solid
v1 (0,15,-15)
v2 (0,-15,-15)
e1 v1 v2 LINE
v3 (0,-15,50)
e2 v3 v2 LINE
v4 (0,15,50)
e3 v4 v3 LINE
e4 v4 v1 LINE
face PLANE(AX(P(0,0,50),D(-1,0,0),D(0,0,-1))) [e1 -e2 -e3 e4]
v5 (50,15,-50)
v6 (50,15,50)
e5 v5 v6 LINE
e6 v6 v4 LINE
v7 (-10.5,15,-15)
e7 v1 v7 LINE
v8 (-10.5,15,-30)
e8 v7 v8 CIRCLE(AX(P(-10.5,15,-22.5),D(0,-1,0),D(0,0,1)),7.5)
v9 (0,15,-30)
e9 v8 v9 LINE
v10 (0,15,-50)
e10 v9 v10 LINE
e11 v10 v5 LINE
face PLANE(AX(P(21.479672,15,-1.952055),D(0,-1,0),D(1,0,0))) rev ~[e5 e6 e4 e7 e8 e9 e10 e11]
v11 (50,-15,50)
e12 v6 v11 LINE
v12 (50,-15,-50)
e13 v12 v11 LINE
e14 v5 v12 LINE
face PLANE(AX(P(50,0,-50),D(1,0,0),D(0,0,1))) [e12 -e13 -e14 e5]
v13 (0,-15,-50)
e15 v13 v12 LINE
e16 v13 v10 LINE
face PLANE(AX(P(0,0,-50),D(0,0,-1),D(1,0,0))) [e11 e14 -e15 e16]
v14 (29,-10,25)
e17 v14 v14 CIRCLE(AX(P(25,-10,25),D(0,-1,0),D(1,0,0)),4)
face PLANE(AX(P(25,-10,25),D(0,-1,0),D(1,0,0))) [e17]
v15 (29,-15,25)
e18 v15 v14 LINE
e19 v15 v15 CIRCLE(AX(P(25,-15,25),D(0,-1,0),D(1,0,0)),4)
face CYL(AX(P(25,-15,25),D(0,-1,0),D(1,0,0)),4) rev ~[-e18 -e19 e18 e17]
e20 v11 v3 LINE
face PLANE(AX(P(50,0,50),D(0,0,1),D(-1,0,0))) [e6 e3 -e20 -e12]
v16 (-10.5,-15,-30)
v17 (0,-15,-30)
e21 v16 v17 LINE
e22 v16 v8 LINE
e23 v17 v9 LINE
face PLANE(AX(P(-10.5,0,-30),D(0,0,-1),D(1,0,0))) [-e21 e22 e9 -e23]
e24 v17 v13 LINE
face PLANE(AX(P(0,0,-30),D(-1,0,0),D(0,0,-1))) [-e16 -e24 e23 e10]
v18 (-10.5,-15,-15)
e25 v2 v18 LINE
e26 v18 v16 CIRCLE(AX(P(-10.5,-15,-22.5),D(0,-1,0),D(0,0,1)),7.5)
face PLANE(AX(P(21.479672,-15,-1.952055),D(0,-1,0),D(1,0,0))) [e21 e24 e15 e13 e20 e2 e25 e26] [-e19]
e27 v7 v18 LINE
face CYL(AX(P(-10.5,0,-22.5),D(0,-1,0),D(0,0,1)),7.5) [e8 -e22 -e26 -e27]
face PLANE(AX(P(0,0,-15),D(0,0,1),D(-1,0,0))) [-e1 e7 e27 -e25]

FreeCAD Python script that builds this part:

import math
import FreeCAD as App
import Part
import Sketcher

V = App.Vector
Q = App.Units.Quantity

doc = App.newDocument("Part")
body = doc.addObject("PartDesign::Body", "Body")

# Sketch on XZ plane
sketch1 = body.newObject("Sketcher::SketchObject", "Sketch")
sketch1.AttachmentSupport = (doc.getObject("XZ_Plane"), [""])
sketch1.MapMode = "FlatFace"
sketch1.addGeometry([
    Part.LineSegment(V(0, -50, 0), V(50, -50, 0)),  # 0
    Part.LineSegment(V(50, -50, 0), V(50, 50, 0)),  # 1
    Part.LineSegment(V(50, 50, 0), V(0, 50, 0)),  # 2
    Part.LineSegment(V(0, 50, 0), V(0, -15, 0)),  # 3
    Part.LineSegment(V(0, -15, 0), V(-10, -15, 0)),  # 4
    Part.ArcOfCircle(Part.Circle(V(-10, -22, 0), V(0, 0, 1), 8), math.radians(90), math.radians(270)),  # 5
    Part.LineSegment(V(-10, -30, 0), V(0, -30, 0)),  # 6
    Part.LineSegment(V(0, -30, 0), V(0, -50, 0)),  # 7
], False)
sketch1.addConstraint([
    Sketcher.Constraint("Coincident", 0, 2, 1, 1),
    Sketcher.Constraint("Coincident", 1, 2, 2, 1),
    Sketcher.Constraint("Coincident", 2, 2, 3, 1),
    Sketcher.Constraint("Coincident", 3, 2, 4, 1),
    Sketcher.Constraint("Tangent", 4, 2, 5, 1),
    Sketcher.Constraint("Tangent", 5, 2, 6, 1),
    Sketcher.Constraint("Coincident", 6, 2, 7, 1),
    Sketcher.Constraint("Coincident", 7, 2, 0, 1),
    Sketcher.Constraint("Horizontal", 0),
    Sketcher.Constraint("Vertical", 1),
    Sketcher.Constraint("Horizontal", 2),
    Sketcher.Constraint("Vertical", 3),
    Sketcher.Constraint("Horizontal", 4),
    Sketcher.Constraint("Horizontal", 6),
    Sketcher.Constraint("Vertical", 7),
    Sketcher.Constraint("Symmetric", 2, 2, 7, 2, -1, 1),
    Sketcher.Constraint("PointOnObject", 2, 2, -2),
    Sketcher.Constraint("Radius", 5, Q("7.5 mm")),
    Sketcher.Constraint("DistanceX", 0, 1, 0, 2, Q("50 mm")),
    Sketcher.Constraint("DistanceY", 1, 1, 1, 2, Q("100 mm")),
    Sketcher.Constraint("DistanceY", 3, 2, 3, 1, Q("65 mm")),
    Sketcher.Constraint("DistanceX", 4, 2, 4, 1, Q("10.5 mm")),
])
pad1 = body.newObject("PartDesign::Pad", "Pad")
pad1.Profile = sketch1
pad1.Length = 30
pad1.Midplane = True

# Sketch on XZ plane
sketch2 = body.newObject("Sketcher::SketchObject", "Sketch001")
sketch2.AttachmentSupport = (doc.getObject("XZ_Plane"), [""])
sketch2.MapMode = "FlatFace"
sketch2.AttachmentOffset = App.Placement(V(0, 0, 15), App.Rotation())
sketch2.addGeometry(Part.Circle(V(25, 25, 0), V(0, 0, 1), 4), False)
sketch2.addConstraint([
    Sketcher.Constraint("Diameter", 0, Q("8 mm")),
    Sketcher.Constraint("DistanceX", -1, 1, 0, 3, Q("25 mm")),
    Sketcher.Constraint("DistanceY", -1, 1, 0, 3, Q("25 mm")),
])
pocket1 = body.newObject("PartDesign::Pocket", "Pocket")
pocket1.Profile = sketch2
pocket1.Length = 5

doc.recompute()
